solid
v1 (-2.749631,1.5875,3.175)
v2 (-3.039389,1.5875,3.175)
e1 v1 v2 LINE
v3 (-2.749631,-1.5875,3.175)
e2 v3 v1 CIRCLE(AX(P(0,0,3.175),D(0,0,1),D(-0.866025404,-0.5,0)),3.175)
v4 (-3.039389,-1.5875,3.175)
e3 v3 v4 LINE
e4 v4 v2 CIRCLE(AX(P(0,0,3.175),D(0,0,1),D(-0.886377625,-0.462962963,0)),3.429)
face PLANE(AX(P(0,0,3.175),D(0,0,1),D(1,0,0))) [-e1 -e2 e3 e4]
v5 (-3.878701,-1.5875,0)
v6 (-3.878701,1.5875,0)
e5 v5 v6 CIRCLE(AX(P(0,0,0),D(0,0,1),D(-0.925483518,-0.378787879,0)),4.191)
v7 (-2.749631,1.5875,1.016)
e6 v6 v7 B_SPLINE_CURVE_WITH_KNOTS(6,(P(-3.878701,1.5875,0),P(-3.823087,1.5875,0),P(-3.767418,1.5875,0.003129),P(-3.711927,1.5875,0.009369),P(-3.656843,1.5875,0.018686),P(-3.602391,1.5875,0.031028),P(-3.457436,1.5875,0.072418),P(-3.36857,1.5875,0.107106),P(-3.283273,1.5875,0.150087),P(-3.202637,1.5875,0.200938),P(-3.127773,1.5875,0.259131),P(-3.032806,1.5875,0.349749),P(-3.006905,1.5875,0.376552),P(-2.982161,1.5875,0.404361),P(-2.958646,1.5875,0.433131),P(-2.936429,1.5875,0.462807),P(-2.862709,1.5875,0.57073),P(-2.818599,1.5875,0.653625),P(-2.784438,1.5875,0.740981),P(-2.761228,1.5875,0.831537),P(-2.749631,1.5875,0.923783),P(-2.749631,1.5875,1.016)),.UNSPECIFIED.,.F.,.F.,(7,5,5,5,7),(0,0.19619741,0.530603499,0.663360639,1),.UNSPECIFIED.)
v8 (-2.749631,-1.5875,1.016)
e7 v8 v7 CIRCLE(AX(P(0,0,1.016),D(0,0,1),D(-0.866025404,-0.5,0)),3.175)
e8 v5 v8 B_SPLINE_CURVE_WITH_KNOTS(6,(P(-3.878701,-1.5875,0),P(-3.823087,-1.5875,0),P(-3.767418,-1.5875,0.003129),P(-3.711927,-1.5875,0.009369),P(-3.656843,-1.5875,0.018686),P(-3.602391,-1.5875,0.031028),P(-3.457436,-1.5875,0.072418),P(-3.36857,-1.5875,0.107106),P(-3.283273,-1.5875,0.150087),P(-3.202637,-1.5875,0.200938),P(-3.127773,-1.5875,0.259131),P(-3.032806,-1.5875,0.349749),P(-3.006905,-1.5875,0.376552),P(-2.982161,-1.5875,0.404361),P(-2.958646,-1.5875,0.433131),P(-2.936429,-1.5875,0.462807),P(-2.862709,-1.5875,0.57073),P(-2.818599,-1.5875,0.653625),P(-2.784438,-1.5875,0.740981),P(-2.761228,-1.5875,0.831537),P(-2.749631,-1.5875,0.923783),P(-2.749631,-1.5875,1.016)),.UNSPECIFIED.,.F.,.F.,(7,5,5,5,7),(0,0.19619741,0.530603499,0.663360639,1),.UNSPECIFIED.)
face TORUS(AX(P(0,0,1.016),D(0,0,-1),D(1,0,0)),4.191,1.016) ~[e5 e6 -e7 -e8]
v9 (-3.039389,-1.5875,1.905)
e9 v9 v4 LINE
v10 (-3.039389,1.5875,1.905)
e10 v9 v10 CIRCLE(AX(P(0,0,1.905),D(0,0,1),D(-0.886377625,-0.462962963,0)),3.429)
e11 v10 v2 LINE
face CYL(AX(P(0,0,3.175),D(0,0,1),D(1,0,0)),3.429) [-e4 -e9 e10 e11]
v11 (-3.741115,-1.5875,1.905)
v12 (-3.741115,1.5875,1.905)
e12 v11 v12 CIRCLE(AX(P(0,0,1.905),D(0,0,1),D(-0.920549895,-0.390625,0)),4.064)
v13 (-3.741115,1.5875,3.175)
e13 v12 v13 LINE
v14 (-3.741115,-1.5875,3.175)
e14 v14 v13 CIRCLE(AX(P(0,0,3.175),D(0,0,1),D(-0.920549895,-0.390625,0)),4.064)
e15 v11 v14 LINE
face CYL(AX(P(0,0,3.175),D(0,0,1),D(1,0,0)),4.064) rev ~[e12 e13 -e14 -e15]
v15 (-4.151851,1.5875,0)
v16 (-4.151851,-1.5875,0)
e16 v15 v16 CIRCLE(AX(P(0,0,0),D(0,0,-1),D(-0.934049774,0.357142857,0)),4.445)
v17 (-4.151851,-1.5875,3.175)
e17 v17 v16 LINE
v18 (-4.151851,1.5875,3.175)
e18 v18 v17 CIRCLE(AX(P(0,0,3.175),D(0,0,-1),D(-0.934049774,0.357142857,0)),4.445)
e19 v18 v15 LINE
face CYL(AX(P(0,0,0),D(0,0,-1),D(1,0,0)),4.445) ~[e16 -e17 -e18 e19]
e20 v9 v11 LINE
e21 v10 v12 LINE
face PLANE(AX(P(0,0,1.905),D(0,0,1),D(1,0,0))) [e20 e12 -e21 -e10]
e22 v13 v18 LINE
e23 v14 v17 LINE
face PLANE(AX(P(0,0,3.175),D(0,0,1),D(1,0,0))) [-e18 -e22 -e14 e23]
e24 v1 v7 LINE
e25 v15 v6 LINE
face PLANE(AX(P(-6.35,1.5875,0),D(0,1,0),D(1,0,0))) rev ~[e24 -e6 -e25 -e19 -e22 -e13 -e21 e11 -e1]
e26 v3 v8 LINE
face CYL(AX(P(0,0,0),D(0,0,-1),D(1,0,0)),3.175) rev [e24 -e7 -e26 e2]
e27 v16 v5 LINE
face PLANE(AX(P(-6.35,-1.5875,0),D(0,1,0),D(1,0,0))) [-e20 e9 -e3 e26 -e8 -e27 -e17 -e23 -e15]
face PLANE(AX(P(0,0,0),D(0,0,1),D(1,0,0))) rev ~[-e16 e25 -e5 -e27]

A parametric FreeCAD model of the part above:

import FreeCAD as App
import Part
import Sketcher
Q = App.Units.Quantity


def edges_at(feature, points):
    """Names of the edges that pass closest to the given points."""
    edges = feature.Shape.Edges
    near = lambda p: min(range(len(edges)), key=lambda i: edges[i].distToShape(Part.Vertex(*p))[0])
    return sorted({f"Edge{near(p) + 1}" for p in points})

doc = App.newDocument("Part")
body = doc.addObject("PartDesign::Body", "Body")

sketch1 = body.newObject("Sketcher::SketchObject", "Sketch")
sketch1.AttachmentSupport = (doc.getObject("XY_Plane"), [""])
sketch1.MapMode = "FlatFace"
sketch1.addGeometry(Part.Circle(App.Vector(0, 0, 0), App.Vector(0, 0, 1), 4.4), False)
sketch1.addGeometry(Part.Circle(App.Vector(0, 0, 0), App.Vector(0, 0, 1), 3.2), False)
sketch1.addConstraint(Sketcher.Constraint("Coincident", 0, 3, -1, 1))
sketch1.addConstraint(Sketcher.Constraint("Coincident", 1, 3, -1, 1))
sketch1.addConstraint(Sketcher.Constraint("Diameter", 0, Q("0.35 in")))
sketch1.addConstraint(Sketcher.Constraint("Diameter", 1, Q("0.25 in")))
pad1 = body.newObject("PartDesign::Pad", "Pad")
pad1.Profile = sketch1
pad1.Length = Q("0.125 in")

sketch2 = body.newObject("Sketcher::SketchObject", "Sketch001")
sketch2.AttachmentSupport = (doc.getObject("XY_Plane"), [""])
sketch2.MapMode = "FlatFace"
sketch2.AttachmentOffset = App.Placement(App.Vector(0, 0, 0.125 * 25.4), App.Rotation())
sketch2.addGeometry(Part.Circle(App.Vector(0, 0, 0), App.Vector(0, 0, 1), 4.1), False)
sketch2.addGeometry(Part.Circle(App.Vector(0, 0, 0), App.Vector(0, 0, 1), 3.4), False)
sketch2.addConstraint(Sketcher.Constraint("Coincident", 0, 3, -1, 1))
sketch2.addConstraint(Sketcher.Constraint("Coincident", 1, 3, -1, 1))
sketch2.addConstraint(Sketcher.Constraint("Diameter", 0, Q("0.32 in")))
sketch2.addConstraint(Sketcher.Constraint("Diameter", 1, Q("0.27 in")))
pocket1 = body.newObject("PartDesign::Pocket", "Pocket")
pocket1.Profile = sketch2
pocket1.Length = Q("0.05 in")
doc.recompute()

fillet = body.newObject("PartDesign::Fillet", "Fillet")
fillet.Base = (pocket1, edges_at(pocket1, [(-3.175, 0, 0)]))
fillet.Radius = Q("0.04 in")

sketch3 = body.newObject("Sketcher::SketchObject", "Sketch002")
sketch3.AttachmentSupport = (doc.getObject("XY_Plane"), [""])
sketch3.MapMode = "FlatFace"
sketch3.addGeometry(Part.LineSegment(App.Vector(-6.3, 1.6, 0), App.Vector(-6.3, -1.6, 0)), False)
sketch3.addGeometry(Part.LineSegment(App.Vector(-6.3, -1.6, 0), App.Vector(0, -1.6, 0)), False)
sketch3.addGeometry(Part.LineSegment(App.Vector(0, -1.6, 0), App.Vector(0, 1.6, 0)), False)
sketch3.addGeometry(Part.LineSegment(App.Vector(0, 1.6, 0), App.Vector(-6.3, 1.6, 0)), False)
sketch3.addConstraint(Sketcher.Constraint("Coincident", 0, 2, 1, 1))
sketch3.addConstraint(Sketcher.Constraint("Coincident", 1, 2, 2, 1))
sketch3.addConstraint(Sketcher.Constraint("Coincident", 2, 2, 3, 1))
sketch3.addConstraint(Sketcher.Constraint("Coincident", 3, 2, 0, 1))
sketch3.addConstraint(Sketcher.Constraint("Vertical", 0))
sketch3.addConstraint(Sketcher.Constraint("Horizontal", 1))
sketch3.addConstraint(Sketcher.Constraint("Vertical", 2))
sketch3.addConstraint(Sketcher.Constraint("Horizontal", 3))
sketch3.addConstraint(Sketcher.Constraint("Symmetric", 1, 2, 2, 2, -1, 1))
sketch3.addConstraint(Sketcher.Constraint("DistanceX", 1, 1, 1, 2, Q("0.25 in")))
sketch3.addConstraint(Sketcher.Constraint("DistanceY", 0, 2, 0, 1, Q("0.125 in")))
pocket2 = body.newObject("PartDesign::Pocket", "Pocket001")
pocket2.Profile = sketch3
pocket2.Length = Q("1 in")
pocket2.Reversed = True

doc.recompute()
